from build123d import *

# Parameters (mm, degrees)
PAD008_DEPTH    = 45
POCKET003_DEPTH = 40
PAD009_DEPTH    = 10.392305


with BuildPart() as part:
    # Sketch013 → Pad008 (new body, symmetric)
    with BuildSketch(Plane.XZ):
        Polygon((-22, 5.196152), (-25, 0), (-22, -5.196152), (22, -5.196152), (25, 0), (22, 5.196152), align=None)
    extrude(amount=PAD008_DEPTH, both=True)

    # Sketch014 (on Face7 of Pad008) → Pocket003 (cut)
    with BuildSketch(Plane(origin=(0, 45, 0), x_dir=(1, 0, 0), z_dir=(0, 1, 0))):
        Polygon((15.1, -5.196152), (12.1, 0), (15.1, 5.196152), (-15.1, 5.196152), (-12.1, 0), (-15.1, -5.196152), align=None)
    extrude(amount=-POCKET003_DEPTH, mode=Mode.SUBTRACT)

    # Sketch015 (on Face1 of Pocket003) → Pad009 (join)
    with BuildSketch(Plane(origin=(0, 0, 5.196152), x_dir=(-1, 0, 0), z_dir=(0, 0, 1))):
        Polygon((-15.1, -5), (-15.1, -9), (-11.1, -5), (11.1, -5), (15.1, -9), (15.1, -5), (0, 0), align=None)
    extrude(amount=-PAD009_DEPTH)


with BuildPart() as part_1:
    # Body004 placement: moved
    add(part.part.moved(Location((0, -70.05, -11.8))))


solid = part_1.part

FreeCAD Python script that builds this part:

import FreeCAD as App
import Part
import Sketcher
Q = App.Units.Quantity

doc = App.newDocument("Part")
body = doc.addObject("PartDesign::Body", "Body")

# Sketch on XZ plane
sketch1 = body.newObject("Sketcher::SketchObject", "Sketch")
sketch1.AttachmentSupport = (doc.getObject("XZ_Plane"), [""])
sketch1.MapMode = "FlatFace"
sketch1.addGeometry([
    Part.LineSegment(App.Vector(-22, 5.196152, 0), App.Vector(-25, 0, 0)),  # 0
    Part.LineSegment(App.Vector(-25, 0, 0), App.Vector(-22, -5.196152, 0)),  # 1
    Part.LineSegment(App.Vector(-22, -5.196152, 0), App.Vector(22, -5.196152, 0)),  # 2
    Part.LineSegment(App.Vector(22, -5.196152, 0), App.Vector(25, 0, 0)),  # 3
    Part.LineSegment(App.Vector(25, 0, 0), App.Vector(22, 5.196152, 0)),  # 4
    Part.LineSegment(App.Vector(22, 5.196152, 0), App.Vector(-22, 5.196152, 0)),  # 5
], False)
sketch1.addConstraint([
    Sketcher.Constraint("Coincident", 0, 2, 1, 1),
    Sketcher.Constraint("Coincident", 1, 2, 2, 1),
    Sketcher.Constraint("Coincident", 2, 2, 3, 1),
    Sketcher.Constraint("Coincident", 3, 2, 4, 1),
    Sketcher.Constraint("Coincident", 4, 2, 5, 1),
    Sketcher.Constraint("Coincident", 5, 2, 0, 1),
    Sketcher.Constraint("Horizontal", 2),
    Sketcher.Constraint("Horizontal", 5),
    Sketcher.Constraint("Symmetric", 0, 2, 3, 2, -1, 1),
    Sketcher.Constraint("Symmetric", 1, 2, 4, 2, -1, 1),
    Sketcher.Constraint("PointOnObject", 0, 2, -1),
    Sketcher.Constraint("Parallel", 0, 3),
    Sketcher.Constraint("Vertical", 2, 2, 4, 2),
    Sketcher.Constraint("DistanceX", 2, 1, 2, 2, 44.0),
    Sketcher.Constraint("Angle", 0, Q("-120.000002 deg")),
    Sketcher.Constraint("Distance", 0, 6.0),
])
pad1 = body.newObject("PartDesign::Pad", "Pad")
pad1.Profile = sketch1
pad1.Length = 90
pad1.Midplane = True

# Sketch on XZ plane
sketch2 = body.newObject("Sketcher::SketchObject", "Sketch001")
sketch2.AttachmentSupport = (doc.getObject("XZ_Plane"), [""])
sketch2.MapMode = "FlatFace"
sketch2.AttachmentOffset = App.Placement(App.Vector(0, 0, -45), App.Rotation())
sketch2.addGeometry([
    Part.LineSegment(App.Vector(15.1, 5.196152, 0), App.Vector(12.1, 0, 0)),  # 0
    Part.LineSegment(App.Vector(12.1, 0, 0), App.Vector(15.1, -5.196152, 0)),  # 1
    Part.LineSegment(App.Vector(15.1, -5.196152, 0), App.Vector(-15.1, -5.196152, 0)),  # 2
    Part.LineSegment(App.Vector(-15.1, -5.196152, 0), App.Vector(-12.1, 0, 0)),  # 3
    Part.LineSegment(App.Vector(-12.1, 0, 0), App.Vector(-15.1, 5.196152, 0)),  # 4
    Part.LineSegment(App.Vector(-15.1, 5.196152, 0), App.Vector(15.1, 5.196152, 0)),  # 5
], False)
sketch2.addConstraint([
    Sketcher.Constraint("Coincident", 0, 2, 1, 1),
    Sketcher.Constraint("Coincident", 1, 2, 2, 1),
    Sketcher.Constraint("Coincident", 2, 2, 3, 1),
    Sketcher.Constraint("Coincident", 3, 2, 4, 1),
    Sketcher.Constraint("Coincident", 4, 2, 5, 1),
    Sketcher.Constraint("Coincident", 5, 2, 0, 1),
    Sketcher.Constraint("Horizontal", 2),
    Sketcher.Constraint("Horizontal", 5),
    Sketcher.Constraint("Symmetric", 0, 2, 3, 2, -1, 1),
    Sketcher.Constraint("Symmetric", 1, 2, 4, 2, -1, 1),
    Sketcher.Constraint("PointOnObject", 0, 2, -1),
    Sketcher.Constraint("Parallel", 0, 3),
    Sketcher.Constraint("Vertical", 2, 2, 4, 2),
    Sketcher.Constraint("Angle", 0, Q("-120.000002 deg")),
    Sketcher.Constraint("Distance", 0, 6.0),
    Sketcher.Constraint("DistanceX", 2, 2, 2, 1, 30.2),
])
pocket1 = body.newObject("PartDesign::Pocket", "Pocket")
pocket1.Profile = sketch2
pocket1.Length = 40
pocket1.Reversed = True

# Sketch on XY plane
sketch3 = body.newObject("Sketcher::SketchObject", "Sketch002")
sketch3.AttachmentSupport = (doc.getObject("XY_Plane"), [""])
sketch3.MapMode = "FlatFace"
sketch3.AttachmentOffset = App.Placement(App.Vector(0, 0, 5.196152), App.Rotation())
sketch3.addGeometry([
    Part.LineSegment(App.Vector(15.1, 5, 0), App.Vector(15.1, 9, 0)),  # 0
    Part.LineSegment(App.Vector(15.1, 9, 0), App.Vector(11.1, 5, 0)),  # 1
    Part.LineSegment(App.Vector(11.1, 5, 0), App.Vector(-11.1, 5, 0)),  # 2
    Part.LineSegment(App.Vector(-11.1, 5, 0), App.Vector(-15.1, 9, 0)),  # 3
    Part.LineSegment(App.Vector(-15.1, 9, 0), App.Vector(-15.1, 5, 0)),  # 4
    Part.LineSegment(App.Vector(-15.1, 5, 0), App.Vector(0, 0, 0)),  # 5
    Part.LineSegment(App.Vector(0, 0, 0), App.Vector(15.1, 5, 0)),  # 6
], False)
sketch3.addConstraint([
    Sketcher.Constraint("Coincident", 0, 2, 1, 1),
    Sketcher.Constraint("Coincident", 1, 2, 2, 1),
    Sketcher.Constraint("Coincident", 2, 2, 3, 1),
    Sketcher.Constraint("Coincident", 3, 2, 4, 1),
    Sketcher.Constraint("Coincident", 4, 2, 5, 1),
    Sketcher.Constraint("Coincident", 5, 2, 6, 1),
    Sketcher.Constraint("Coincident", 6, 2, 0, 1),
    Sketcher.Constraint("Vertical", 0),
    Sketcher.Constraint("Horizontal", 2),
    Sketcher.Constraint("Vertical", 4),
    Sketcher.Constraint("Coincident", 5, 2, -1, 1),
    Sketcher.Constraint("Symmetric", 0, 2, 3, 2, -2),
    Sketcher.Constraint("Perpendicular", 1, 3),
    Sketcher.Constraint("Horizontal", 2, 2, 4, 2),
    Sketcher.Constraint("Horizontal", 4, 2, 6, 2),
    Sketcher.Constraint("Equal", 1, 3),
    Sketcher.Constraint("DistanceY", 0, 1, 0, 2, 4.0),
    Sketcher.Constraint("DistanceX", 2, 2, 2, 1, 22.2),
    Sketcher.Constraint("DistanceY", -1, 1, 0, 2, 9.0),
])
pad2 = body.newObject("PartDesign::Pad", "Pad001")
pad2.Profile = sketch3
pad2.Length = 10.392305
pad2.Reversed = True
body2 = doc.addObject("PartDesign::Body", "Body001")
doc.recompute()

body.Placement = App.Placement(App.Vector(0, -70.05, -11.8), App.Rotation(App.Vector(0, 0, 1), 0))
boolean = body2.newObject("PartDesign::Boolean", "Boolean")
boolean.Type = "Fuse"
boolean.addObjects([body])

doc.recompute()
